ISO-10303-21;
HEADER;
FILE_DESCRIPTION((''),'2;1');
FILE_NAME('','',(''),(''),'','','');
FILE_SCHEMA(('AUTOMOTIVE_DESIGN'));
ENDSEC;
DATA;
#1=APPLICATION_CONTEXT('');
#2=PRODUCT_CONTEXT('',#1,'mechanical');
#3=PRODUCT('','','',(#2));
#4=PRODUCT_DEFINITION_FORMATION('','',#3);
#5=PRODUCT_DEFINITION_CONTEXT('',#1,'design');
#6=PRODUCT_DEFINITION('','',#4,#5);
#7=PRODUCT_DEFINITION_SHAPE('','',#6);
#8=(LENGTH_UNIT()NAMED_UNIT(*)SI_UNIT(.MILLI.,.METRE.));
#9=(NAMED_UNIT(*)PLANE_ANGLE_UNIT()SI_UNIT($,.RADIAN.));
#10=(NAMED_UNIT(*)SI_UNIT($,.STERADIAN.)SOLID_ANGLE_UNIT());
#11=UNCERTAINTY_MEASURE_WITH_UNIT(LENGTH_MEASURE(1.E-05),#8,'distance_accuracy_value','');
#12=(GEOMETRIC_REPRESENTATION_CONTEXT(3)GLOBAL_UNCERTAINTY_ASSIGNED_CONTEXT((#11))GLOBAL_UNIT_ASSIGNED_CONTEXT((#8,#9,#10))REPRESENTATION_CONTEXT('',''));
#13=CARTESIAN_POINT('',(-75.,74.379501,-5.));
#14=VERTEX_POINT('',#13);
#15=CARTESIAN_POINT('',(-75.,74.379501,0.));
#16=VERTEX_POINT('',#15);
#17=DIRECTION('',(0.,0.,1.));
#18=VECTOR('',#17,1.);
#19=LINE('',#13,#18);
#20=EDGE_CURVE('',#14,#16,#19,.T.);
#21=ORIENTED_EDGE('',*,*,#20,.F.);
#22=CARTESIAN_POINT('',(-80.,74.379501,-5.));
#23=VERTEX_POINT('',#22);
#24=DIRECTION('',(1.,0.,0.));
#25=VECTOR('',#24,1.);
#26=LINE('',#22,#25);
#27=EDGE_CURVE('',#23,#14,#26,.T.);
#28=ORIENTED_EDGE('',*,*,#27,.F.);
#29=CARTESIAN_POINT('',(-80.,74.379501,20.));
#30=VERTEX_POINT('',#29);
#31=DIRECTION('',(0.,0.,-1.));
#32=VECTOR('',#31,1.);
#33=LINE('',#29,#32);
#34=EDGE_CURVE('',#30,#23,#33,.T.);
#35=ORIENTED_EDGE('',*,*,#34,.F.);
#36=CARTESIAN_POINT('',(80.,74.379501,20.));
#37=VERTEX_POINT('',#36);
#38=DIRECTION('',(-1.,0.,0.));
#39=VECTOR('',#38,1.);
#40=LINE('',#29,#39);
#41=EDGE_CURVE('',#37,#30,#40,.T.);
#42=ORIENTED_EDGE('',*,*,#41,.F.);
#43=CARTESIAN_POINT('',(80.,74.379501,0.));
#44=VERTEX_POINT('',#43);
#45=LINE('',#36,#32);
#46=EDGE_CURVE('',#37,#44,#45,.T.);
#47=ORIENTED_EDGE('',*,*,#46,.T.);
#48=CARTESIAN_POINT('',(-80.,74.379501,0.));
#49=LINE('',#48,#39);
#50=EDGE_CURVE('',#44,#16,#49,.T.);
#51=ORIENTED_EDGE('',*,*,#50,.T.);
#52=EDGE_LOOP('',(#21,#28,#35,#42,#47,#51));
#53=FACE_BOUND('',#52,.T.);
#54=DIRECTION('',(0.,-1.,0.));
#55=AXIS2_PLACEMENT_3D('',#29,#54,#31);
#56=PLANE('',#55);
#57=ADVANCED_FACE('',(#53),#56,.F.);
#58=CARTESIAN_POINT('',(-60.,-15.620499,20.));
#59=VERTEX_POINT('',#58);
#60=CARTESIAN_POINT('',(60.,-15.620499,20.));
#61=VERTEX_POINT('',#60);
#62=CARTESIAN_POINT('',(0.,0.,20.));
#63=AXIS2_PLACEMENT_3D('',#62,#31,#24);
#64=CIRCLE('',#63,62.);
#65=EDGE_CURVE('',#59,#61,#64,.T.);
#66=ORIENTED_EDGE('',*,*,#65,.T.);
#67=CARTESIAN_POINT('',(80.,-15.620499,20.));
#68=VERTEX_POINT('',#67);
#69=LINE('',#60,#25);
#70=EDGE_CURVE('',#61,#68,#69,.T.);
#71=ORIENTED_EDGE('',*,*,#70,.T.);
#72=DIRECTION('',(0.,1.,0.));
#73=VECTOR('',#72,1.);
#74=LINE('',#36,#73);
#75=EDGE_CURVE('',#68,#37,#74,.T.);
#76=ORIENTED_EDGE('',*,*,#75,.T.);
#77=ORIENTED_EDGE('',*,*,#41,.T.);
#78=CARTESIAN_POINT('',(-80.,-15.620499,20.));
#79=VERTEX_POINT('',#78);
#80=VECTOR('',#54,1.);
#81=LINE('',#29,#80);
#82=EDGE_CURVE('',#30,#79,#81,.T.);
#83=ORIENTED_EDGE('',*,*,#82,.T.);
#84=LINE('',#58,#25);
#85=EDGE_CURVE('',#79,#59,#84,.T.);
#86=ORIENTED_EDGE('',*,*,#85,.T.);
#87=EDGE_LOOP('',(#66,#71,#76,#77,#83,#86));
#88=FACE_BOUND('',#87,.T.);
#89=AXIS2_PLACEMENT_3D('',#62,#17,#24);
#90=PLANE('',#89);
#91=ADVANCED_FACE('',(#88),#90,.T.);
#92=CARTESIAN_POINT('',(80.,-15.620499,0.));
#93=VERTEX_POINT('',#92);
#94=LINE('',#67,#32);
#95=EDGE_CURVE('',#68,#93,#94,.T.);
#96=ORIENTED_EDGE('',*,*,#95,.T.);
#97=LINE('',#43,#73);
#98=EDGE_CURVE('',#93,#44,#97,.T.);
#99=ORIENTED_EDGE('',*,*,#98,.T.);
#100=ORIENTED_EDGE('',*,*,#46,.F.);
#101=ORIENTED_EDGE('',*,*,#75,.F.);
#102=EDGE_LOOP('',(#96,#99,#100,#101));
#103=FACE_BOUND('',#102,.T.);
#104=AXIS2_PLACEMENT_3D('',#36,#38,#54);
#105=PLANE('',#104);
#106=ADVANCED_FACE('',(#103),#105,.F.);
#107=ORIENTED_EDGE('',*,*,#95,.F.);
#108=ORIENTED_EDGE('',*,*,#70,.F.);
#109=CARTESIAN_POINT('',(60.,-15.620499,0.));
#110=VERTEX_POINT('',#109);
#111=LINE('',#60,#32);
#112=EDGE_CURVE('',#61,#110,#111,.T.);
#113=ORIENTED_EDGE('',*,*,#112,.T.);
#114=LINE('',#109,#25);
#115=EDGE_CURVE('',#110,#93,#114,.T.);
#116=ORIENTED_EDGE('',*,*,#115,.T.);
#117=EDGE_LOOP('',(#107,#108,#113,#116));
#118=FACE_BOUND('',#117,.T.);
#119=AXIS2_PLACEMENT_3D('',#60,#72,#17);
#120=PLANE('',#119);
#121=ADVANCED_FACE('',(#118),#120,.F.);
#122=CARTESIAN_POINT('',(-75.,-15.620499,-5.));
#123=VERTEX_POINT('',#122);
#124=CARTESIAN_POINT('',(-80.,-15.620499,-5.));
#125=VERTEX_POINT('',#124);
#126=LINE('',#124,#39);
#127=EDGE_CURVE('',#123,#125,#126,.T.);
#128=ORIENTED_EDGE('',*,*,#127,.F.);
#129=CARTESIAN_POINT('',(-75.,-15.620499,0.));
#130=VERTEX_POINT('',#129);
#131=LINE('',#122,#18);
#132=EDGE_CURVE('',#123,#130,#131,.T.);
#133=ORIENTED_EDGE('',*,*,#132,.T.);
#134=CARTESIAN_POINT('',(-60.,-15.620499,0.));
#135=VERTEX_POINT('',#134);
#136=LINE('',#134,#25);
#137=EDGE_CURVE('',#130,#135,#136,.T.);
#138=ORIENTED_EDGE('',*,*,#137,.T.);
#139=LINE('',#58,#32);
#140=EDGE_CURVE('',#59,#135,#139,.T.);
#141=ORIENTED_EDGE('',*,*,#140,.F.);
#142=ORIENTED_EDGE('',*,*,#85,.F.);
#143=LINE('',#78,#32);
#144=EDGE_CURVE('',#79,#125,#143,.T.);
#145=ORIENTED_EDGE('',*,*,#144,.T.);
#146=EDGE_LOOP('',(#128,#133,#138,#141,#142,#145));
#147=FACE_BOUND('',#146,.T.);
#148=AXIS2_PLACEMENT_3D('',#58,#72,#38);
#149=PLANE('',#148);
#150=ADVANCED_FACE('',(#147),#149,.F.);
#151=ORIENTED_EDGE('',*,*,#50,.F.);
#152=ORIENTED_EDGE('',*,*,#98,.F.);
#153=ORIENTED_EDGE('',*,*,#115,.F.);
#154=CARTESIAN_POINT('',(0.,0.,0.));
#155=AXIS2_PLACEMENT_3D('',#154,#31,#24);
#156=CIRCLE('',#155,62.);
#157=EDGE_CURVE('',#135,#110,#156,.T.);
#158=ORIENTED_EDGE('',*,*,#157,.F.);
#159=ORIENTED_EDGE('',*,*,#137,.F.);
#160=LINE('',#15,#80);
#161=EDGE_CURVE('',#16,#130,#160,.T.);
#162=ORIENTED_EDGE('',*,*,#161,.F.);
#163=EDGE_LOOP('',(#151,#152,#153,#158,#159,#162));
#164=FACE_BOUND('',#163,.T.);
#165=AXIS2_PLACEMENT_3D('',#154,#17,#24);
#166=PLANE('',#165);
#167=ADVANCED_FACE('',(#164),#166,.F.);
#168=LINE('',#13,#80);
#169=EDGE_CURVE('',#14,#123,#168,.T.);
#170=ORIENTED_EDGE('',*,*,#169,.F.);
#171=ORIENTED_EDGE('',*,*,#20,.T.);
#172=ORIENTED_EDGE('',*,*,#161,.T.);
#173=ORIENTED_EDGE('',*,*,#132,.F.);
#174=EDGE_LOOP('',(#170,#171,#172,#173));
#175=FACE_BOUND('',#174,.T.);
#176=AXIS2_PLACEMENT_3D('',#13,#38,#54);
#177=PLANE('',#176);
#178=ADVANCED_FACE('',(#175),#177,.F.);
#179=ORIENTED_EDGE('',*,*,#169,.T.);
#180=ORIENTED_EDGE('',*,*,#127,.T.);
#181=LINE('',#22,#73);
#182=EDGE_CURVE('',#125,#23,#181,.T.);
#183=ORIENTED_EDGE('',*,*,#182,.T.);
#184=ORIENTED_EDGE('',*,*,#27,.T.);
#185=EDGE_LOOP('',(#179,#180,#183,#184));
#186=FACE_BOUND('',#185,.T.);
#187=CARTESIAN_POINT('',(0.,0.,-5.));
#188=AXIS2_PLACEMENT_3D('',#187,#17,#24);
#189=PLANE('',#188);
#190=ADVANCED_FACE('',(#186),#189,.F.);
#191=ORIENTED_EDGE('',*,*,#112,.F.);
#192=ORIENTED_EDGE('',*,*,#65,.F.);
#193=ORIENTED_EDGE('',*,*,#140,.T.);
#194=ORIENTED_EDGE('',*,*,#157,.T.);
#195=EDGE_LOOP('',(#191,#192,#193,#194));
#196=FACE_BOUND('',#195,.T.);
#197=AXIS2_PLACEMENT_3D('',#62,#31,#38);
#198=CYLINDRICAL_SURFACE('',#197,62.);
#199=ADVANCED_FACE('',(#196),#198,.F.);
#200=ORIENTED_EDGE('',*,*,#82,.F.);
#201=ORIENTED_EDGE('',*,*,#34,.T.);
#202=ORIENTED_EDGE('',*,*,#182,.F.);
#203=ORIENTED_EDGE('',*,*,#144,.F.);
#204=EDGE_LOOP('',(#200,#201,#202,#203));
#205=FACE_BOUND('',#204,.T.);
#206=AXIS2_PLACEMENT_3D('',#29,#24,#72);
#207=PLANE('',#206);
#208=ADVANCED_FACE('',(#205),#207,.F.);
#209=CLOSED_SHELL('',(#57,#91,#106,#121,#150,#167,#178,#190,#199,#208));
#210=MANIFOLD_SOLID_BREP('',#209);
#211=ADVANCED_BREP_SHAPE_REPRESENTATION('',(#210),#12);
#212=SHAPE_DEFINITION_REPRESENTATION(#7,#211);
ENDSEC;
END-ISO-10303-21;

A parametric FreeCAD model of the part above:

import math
import FreeCAD as App
import Part
import Sketcher
from FreeCAD import Vector
Q = App.Units.Quantity

doc = App.newDocument("Part")
body = doc.addObject("PartDesign::Body", "Body")

sketch1 = body.newObject("Sketcher::SketchObject", "Sketch")
sketch1.AttachmentSupport = (doc.getObject("XY_Plane"), [""])
sketch1.MapMode = "FlatFace"
sketch1.addGeometry(Part.LineSegment(Vector(-80, 74, 0), Vector(-80, -16, 0)), False)
sketch1.addGeometry(Part.LineSegment(Vector(-80, -16, 0), Vector(-60, -16, 0)), False)
sketch1.addGeometry(Part.ArcOfCircle(Part.Circle(Vector(0, 0, 0), Vector(0, 0, 1), 62), math.radians(-15), math.radians(195)), False)
sketch1.addGeometry(Part.LineSegment(Vector(60, -16, 0), Vector(80, -16, 0)), False)
sketch1.addGeometry(Part.LineSegment(Vector(80, -16, 0), Vector(80, 74, 0)), False)
sketch1.addGeometry(Part.LineSegment(Vector(80, 74, 0), Vector(-80, 74, 0)), False)
sketch1.addConstraint(Sketcher.Constraint("Coincident", 0, 2, 1, 1))
sketch1.addConstraint(Sketcher.Constraint("Coincident", 1, 2, 2, 2))
sketch1.addConstraint(Sketcher.Constraint("Coincident", 2, 1, 3, 1))
sketch1.addConstraint(Sketcher.Constraint("Coincident", 3, 2, 4, 1))
sketch1.addConstraint(Sketcher.Constraint("Coincident", 4, 2, 5, 1))
sketch1.addConstraint(Sketcher.Constraint("Coincident", 5, 2, 0, 1))
sketch1.addConstraint(Sketcher.Constraint("Vertical", 0))
sketch1.addConstraint(Sketcher.Constraint("Horizontal", 1))
sketch1.addConstraint(Sketcher.Constraint("Horizontal", 3))
sketch1.addConstraint(Sketcher.Constraint("Vertical", 4))
sketch1.addConstraint(Sketcher.Constraint("Horizontal", 5))
sketch1.addConstraint(Sketcher.Constraint("Coincident", 2, 3, -1, 1))
sketch1.addConstraint(Sketcher.Constraint("Symmetric", 0, 2, 3, 2, -2))
sketch1.addConstraint(Sketcher.Constraint("Radius", 2, Q("62 mm")))
sketch1.addConstraint(Sketcher.Constraint("DistanceX", 1, 1, 1, 2, Q("20 mm")))
sketch1.addConstraint(Sketcher.Constraint("DistanceX", 5, 2, 5, 1, Q("160 mm")))
sketch1.addConstraint(Sketcher.Constraint("DistanceY", 0, 2, 0, 1, Q("90 mm")))
pad1 = body.newObject("PartDesign::Pad", "Pad")
pad1.Profile = sketch1
pad1.Length = 20

sketch2 = body.newObject("Sketcher::SketchObject", "Sketch001")
sketch2.AttachmentSupport = (doc.getObject("XY_Plane"), [""])
sketch2.MapMode = "FlatFace"
sketch2.addGeometry(Part.LineSegment(Vector(-75, 74, 0), Vector(-75, -16, 0)), False)
sketch2.addGeometry(Part.LineSegment(Vector(-75, -16, 0), Vector(-80, -16, 0)), False)
sketch2.addGeometry(Part.LineSegment(Vector(-80, -16, 0), Vector(-80, 74, 0)), False)
sketch2.addGeometry(Part.LineSegment(Vector(-80, 74, 0), Vector(-75, 74, 0)), False)
sketch2.addConstraint(Sketcher.Constraint("Coincident", 0, 2, 1, 1))
sketch2.addConstraint(Sketcher.Constraint("Coincident", 1, 2, 2, 1))
sketch2.addConstraint(Sketcher.Constraint("Coincident", 2, 2, 3, 1))
sketch2.addConstraint(Sketcher.Constraint("Coincident", 3, 2, 0, 1))
sketch2.addConstraint(Sketcher.Constraint("Vertical", 0))
sketch2.addConstraint(Sketcher.Constraint("Horizontal", 1))
sketch2.addConstraint(Sketcher.Constraint("Vertical", 2))
sketch2.addConstraint(Sketcher.Constraint("Horizontal", 3))
sketch2.addConstraint(Sketcher.Constraint("DistanceX", 1, 2, 1, 1, Q("5 mm")))
sketch2.addConstraint(Sketcher.Constraint("DistanceY", 0, 2, 0, 1, Q("90 mm")))
sketch2.addConstraint(Sketcher.Constraint("DistanceX", 0, 2, -1, 1, Q("75 mm")))
sketch2.addConstraint(Sketcher.Constraint("DistanceY", 0, 2, -1, 1, Q("15.620499 mm")))
pad2 = body.newObject("PartDesign::Pad", "Pad001")
pad2.Profile = sketch2
pad2.Length = 5
pad2.Reversed = True

doc.recompute()
